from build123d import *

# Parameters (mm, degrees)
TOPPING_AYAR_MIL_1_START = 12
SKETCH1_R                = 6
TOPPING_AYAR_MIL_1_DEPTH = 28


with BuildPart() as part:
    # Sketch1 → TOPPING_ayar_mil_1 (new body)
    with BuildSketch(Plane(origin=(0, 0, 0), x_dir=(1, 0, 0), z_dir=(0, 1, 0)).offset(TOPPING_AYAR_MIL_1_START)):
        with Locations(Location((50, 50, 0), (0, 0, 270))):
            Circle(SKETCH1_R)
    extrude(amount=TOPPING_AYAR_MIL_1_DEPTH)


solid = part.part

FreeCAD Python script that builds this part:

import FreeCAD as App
import Part
import Sketcher
from FreeCAD import Vector
Q = App.Units.Quantity

doc = App.newDocument("Part")
body = doc.addObject("PartDesign::Body", "Body")

# Sketch on XZ plane
sketch1 = body.newObject("Sketcher::SketchObject", "Sketch")
sketch1.AttachmentSupport = (doc.getObject("XZ_Plane"), [""])
sketch1.MapMode = "FlatFace"
sketch1.AttachmentOffset = App.Placement(Vector(0, 0, -12), App.Rotation())
sketch1.addGeometry(Part.Circle(Vector(50, -50, 0), Vector(0, 0, 1), 6), False)
sketch1.addConstraint(Sketcher.Constraint("Diameter", 0, Q("12 mm")))
sketch1.addConstraint(Sketcher.Constraint("DistanceX", -1, 1, 0, 3, Q("50 mm")))
sketch1.addConstraint(Sketcher.Constraint("DistanceY", 0, 3, -1, 1, Q("50 mm")))
pad1 = body.newObject("PartDesign::Pad", "Pad")
pad1.Profile = sketch1
pad1.Length = 28
pad1.Reversed = True

doc.recompute()
